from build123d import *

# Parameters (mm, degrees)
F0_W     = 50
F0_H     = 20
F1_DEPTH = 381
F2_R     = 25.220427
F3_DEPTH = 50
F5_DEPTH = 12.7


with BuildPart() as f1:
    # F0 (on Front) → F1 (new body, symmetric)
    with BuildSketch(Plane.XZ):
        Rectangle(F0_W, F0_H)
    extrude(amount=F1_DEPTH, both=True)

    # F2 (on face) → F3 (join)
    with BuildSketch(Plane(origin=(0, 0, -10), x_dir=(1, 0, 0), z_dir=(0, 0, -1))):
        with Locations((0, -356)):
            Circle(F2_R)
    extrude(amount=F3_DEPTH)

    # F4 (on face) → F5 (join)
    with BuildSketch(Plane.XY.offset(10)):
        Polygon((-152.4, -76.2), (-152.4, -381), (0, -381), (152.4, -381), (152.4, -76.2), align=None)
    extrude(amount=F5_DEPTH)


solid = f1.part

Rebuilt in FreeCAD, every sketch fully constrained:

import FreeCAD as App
import Part
import Sketcher

V = App.Vector
Q = App.Units.Quantity


def add_polygon(sketch, points):
    """Adds a closed chain of lines whose ends are joined by coincident constraints."""
    first, n = sketch.GeometryCount, len(points)
    for a, b in zip(points, points[1:] + points[:1]):
        sketch.addGeometry(Part.LineSegment(App.Vector(*a, 0), App.Vector(*b, 0)), False)
    for i in range(n):
        sketch.addConstraint(Sketcher.Constraint("Coincident", first + i, 2, first + (i + 1) % n, 1))

doc = App.newDocument("Part")
body = doc.addObject("PartDesign::Body", "Body")

# Sketch on XZ plane
sketch1 = body.newObject("Sketcher::SketchObject", "Sketch")
sketch1.AttachmentSupport = (doc.getObject("XZ_Plane"), [""])
sketch1.MapMode = "FlatFace"
add_polygon(sketch1, [(-25, 10), (-25, -10), (25, -10), (25, 10)])  # lines 0-3
sketch1.addConstraint(Sketcher.Constraint("Vertical", 0))
sketch1.addConstraint(Sketcher.Constraint("Horizontal", 1))
sketch1.addConstraint(Sketcher.Constraint("Vertical", 2))
sketch1.addConstraint(Sketcher.Constraint("Horizontal", 3))
sketch1.addConstraint(Sketcher.Constraint("Symmetric", 0, 2, 2, 2, -1, 1))
sketch1.addConstraint(Sketcher.Constraint("DistanceX", 1, 1, 1, 2, 50.0))
sketch1.addConstraint(Sketcher.Constraint("DistanceY", 0, 2, 0, 1, 20.0))
pad1 = body.newObject("PartDesign::Pad", "Pad")
pad1.Profile = sketch1
pad1.Length = Q("30 in")
pad1.Midplane = True

# Sketch on XY plane
sketch2 = body.newObject("Sketcher::SketchObject", "Sketch001")
sketch2.AttachmentSupport = (doc.getObject("XY_Plane"), [""])
sketch2.MapMode = "FlatFace"
sketch2.AttachmentOffset = App.Placement(V(0, 0, -10), App.Rotation())
sketch2.addGeometry(Part.Circle(V(0, 356, 0), V(0, 0, 1), 25.220427), False)
sketch2.addConstraint(Sketcher.Constraint("PointOnObject", 0, 3, -2))
sketch2.addConstraint(Sketcher.Constraint("Diameter", 0, 50.440854))
sketch2.addConstraint(Sketcher.Constraint("DistanceY", -1, 1, 0, 3, 356.0))
pad2 = body.newObject("PartDesign::Pad", "Pad001")
pad2.Profile = sketch2
pad2.Length = 50
pad2.Reversed = True

# Sketch on XY plane
sketch3 = body.newObject("Sketcher::SketchObject", "Sketch002")
sketch3.AttachmentSupport = (doc.getObject("XY_Plane"), [""])
sketch3.MapMode = "FlatFace"
sketch3.AttachmentOffset = App.Placement(V(0, 0, 10), App.Rotation())
add_polygon(sketch3, [(-152.4, -76.2), (-152.4, -381), (152.4, -381), (152.4, -76.2)])  # lines 0-3
sketch3.addConstraint(Sketcher.Constraint("Vertical", 0))
sketch3.addConstraint(Sketcher.Constraint("Horizontal", 1))
sketch3.addConstraint(Sketcher.Constraint("Vertical", 2))
sketch3.addConstraint(Sketcher.Constraint("Horizontal", 3))
sketch3.addConstraint(Sketcher.Constraint("Equal", 3, 0))
sketch3.addConstraint(Sketcher.Constraint("DistanceX", 1, 1, 1, 2, Q("12 in")))
sketch3.addConstraint(Sketcher.Constraint("DistanceX", 0, 2, -1, 1, Q("6 in")))
sketch3.addConstraint(Sketcher.Constraint("DistanceY", 0, 2, -1, 1, Q("15 in")))
pad3 = body.newObject("PartDesign::Pad", "Pad002")
pad3.Profile = sketch3
pad3.Length = Q("0.5 in")

doc.recompute()
